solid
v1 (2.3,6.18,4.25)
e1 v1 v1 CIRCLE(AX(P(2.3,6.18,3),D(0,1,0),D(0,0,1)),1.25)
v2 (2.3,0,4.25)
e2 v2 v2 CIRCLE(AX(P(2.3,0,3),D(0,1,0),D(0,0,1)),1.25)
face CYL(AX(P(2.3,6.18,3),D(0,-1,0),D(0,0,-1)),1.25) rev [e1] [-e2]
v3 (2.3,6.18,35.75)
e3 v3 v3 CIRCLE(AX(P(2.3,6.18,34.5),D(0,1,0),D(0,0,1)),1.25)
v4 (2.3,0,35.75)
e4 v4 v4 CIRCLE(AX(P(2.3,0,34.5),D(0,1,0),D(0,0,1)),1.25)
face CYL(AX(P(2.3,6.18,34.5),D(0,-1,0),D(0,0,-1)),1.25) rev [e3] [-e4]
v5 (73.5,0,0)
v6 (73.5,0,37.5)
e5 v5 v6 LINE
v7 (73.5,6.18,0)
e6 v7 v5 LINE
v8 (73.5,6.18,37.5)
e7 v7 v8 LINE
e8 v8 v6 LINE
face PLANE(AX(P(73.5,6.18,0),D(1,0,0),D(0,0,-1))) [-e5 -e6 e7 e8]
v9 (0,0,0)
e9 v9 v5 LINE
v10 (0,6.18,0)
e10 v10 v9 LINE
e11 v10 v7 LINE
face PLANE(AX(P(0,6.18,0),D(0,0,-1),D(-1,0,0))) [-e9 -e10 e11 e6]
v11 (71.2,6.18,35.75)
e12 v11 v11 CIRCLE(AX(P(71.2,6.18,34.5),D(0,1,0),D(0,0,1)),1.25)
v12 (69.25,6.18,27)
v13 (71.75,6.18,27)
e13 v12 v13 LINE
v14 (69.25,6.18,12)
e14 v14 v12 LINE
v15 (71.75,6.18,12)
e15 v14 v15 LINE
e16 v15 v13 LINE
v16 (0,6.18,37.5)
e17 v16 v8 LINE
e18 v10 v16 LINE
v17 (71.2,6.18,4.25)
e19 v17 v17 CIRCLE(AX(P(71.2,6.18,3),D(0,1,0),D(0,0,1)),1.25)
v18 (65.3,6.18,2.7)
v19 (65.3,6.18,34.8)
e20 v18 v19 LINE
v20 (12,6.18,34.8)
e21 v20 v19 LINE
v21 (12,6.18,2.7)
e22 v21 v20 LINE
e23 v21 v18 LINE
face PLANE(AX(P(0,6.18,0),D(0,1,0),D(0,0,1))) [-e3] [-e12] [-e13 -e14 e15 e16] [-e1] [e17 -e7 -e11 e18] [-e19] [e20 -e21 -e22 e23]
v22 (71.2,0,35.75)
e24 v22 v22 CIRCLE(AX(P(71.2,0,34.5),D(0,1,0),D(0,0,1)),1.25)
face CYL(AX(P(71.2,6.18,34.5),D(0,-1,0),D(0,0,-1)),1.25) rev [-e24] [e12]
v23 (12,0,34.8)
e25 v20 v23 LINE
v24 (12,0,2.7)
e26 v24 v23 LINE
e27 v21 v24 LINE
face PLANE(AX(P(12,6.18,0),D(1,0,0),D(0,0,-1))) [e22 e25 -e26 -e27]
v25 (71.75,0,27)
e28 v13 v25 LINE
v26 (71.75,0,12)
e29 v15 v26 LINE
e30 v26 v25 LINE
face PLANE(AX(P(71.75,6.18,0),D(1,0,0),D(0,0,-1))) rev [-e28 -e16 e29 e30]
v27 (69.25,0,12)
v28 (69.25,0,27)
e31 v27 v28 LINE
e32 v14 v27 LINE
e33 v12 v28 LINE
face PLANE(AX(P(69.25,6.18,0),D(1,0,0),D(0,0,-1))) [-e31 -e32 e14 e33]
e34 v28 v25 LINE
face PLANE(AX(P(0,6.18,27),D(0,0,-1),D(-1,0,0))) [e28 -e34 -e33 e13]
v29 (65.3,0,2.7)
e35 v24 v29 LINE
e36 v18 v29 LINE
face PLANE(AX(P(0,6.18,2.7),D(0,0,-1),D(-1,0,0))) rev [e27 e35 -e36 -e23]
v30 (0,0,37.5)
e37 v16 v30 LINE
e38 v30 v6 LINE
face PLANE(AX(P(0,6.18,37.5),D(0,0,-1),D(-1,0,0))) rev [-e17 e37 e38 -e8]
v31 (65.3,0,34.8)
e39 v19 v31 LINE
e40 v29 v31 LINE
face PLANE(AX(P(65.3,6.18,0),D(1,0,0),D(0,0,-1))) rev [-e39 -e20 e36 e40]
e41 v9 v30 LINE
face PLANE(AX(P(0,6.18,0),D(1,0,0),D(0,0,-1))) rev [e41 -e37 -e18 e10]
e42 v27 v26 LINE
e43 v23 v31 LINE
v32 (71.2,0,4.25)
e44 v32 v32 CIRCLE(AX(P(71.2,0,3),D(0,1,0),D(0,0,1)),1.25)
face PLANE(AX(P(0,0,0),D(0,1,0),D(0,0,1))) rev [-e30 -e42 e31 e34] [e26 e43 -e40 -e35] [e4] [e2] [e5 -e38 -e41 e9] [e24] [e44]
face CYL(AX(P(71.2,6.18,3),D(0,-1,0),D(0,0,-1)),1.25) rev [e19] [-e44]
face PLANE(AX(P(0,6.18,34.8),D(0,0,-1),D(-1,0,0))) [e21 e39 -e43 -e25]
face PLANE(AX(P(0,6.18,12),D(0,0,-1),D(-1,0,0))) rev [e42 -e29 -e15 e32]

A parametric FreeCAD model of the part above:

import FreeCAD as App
import Part
import Sketcher

doc = App.newDocument("Part")
body = doc.addObject("PartDesign::Body", "Body")

# Sketch on XZ plane
sketch1 = body.newObject("Sketcher::SketchObject", "Sketch")
sketch1.AttachmentSupport = (doc.getObject("XZ_Plane"), [""])
sketch1.MapMode = "FlatFace"
sketch1.addGeometry([
    Part.LineSegment(App.Vector(0, 0, 0), App.Vector(0, 37.5, 0)),  # 0
    Part.LineSegment(App.Vector(0, 37.5, 0), App.Vector(73.5, 37.5, 0)),  # 1
    Part.LineSegment(App.Vector(73.5, 37.5, 0), App.Vector(73.5, 0, 0)),  # 2
    Part.LineSegment(App.Vector(73.5, 0, 0), App.Vector(0, 0, 0)),  # 3
    Part.Circle(App.Vector(2.3, 34.5, 0), App.Vector(0, 0, 1), 1.25),  # 4
    Part.Circle(App.Vector(71.2, 34.5, 0), App.Vector(0, 0, 1), 1.25),  # 5
    Part.LineSegment(App.Vector(71.75, 27, 0), App.Vector(69.25, 27, 0)),  # 6
    Part.LineSegment(App.Vector(69.25, 27, 0), App.Vector(69.25, 12, 0)),  # 7
    Part.LineSegment(App.Vector(69.25, 12, 0), App.Vector(71.75, 12, 0)),  # 8
    Part.LineSegment(App.Vector(71.75, 12, 0), App.Vector(71.75, 27, 0)),  # 9
    Part.Circle(App.Vector(2.3, 3, 0), App.Vector(0, 0, 1), 1.25),  # 10
    Part.LineSegment(App.Vector(65.3, 34.8, 0), App.Vector(12, 34.8, 0)),  # 11
    Part.LineSegment(App.Vector(12, 34.8, 0), App.Vector(12, 2.7, 0)),  # 12
    Part.LineSegment(App.Vector(12, 2.7, 0), App.Vector(65.3, 2.7, 0)),  # 13
    Part.LineSegment(App.Vector(65.3, 2.7, 0), App.Vector(65.3, 34.8, 0)),  # 14
    Part.Circle(App.Vector(71.2, 3, 0), App.Vector(0, 0, 1), 1.25),  # 15
], False)
sketch1.addConstraint([
    Sketcher.Constraint("Coincident", 0, 2, 1, 1),
    Sketcher.Constraint("Coincident", 1, 2, 2, 1),
    Sketcher.Constraint("Coincident", 2, 2, 3, 1),
    Sketcher.Constraint("Coincident", 3, 2, 0, 1),
    Sketcher.Constraint("Coincident", 6, 2, 7, 1),
    Sketcher.Constraint("Coincident", 7, 2, 8, 1),
    Sketcher.Constraint("Coincident", 8, 2, 9, 1),
    Sketcher.Constraint("Coincident", 9, 2, 6, 1),
    Sketcher.Constraint("Coincident", 11, 2, 12, 1),
    Sketcher.Constraint("Coincident", 12, 2, 13, 1),
    Sketcher.Constraint("Coincident", 13, 2, 14, 1),
    Sketcher.Constraint("Coincident", 14, 2, 11, 1),
    Sketcher.Constraint("Vertical", 0),
    Sketcher.Constraint("Horizontal", 1),
    Sketcher.Constraint("Vertical", 2),
    Sketcher.Constraint("Horizontal", 3),
    Sketcher.Constraint("Horizontal", 6),
    Sketcher.Constraint("Vertical", 7),
    Sketcher.Constraint("Horizontal", 8),
    Sketcher.Constraint("Vertical", 9),
    Sketcher.Constraint("Horizontal", 11),
    Sketcher.Constraint("Vertical", 12),
    Sketcher.Constraint("Horizontal", 13),
    Sketcher.Constraint("Vertical", 14),
    Sketcher.Constraint("Coincident", 3, 2, -1, 1),
    Sketcher.Constraint("Equal", 4, 5),
    Sketcher.Constraint("Equal", 5, 10),
    Sketcher.Constraint("Equal", 10, 15),
    Sketcher.Constraint("Horizontal", 4, 3, 5, 3),
    Sketcher.Constraint("Horizontal", 10, 3, 15, 3),
    Sketcher.Constraint("Vertical", 4, 3, 10, 3),
    Sketcher.Constraint("Vertical", 5, 3, 15, 3),
    Sketcher.Constraint("Diameter", 4, 2.5),
    Sketcher.Constraint("DistanceY", 7, 2, 7, 1, 15.0),
    Sketcher.Constraint("DistanceX", 1, 1, 1, 2, 73.5),
    Sketcher.Constraint("DistanceX", 6, 2, 6, 1, 2.5),
    Sketcher.Constraint("DistanceX", 11, 2, 11, 1, 53.3),
    Sketcher.Constraint("DistanceY", 0, 1, 0, 2, 37.5),
    Sketcher.Constraint("DistanceY", 12, 2, 12, 1, 32.1),
    Sketcher.Constraint("DistanceY", -1, 1, 10, 3, 3.0),
    Sketcher.Constraint("DistanceY", -1, 1, 6, 2, 27.0),
    Sketcher.Constraint("DistanceX", -1, 1, 11, 2, 12.0),
    Sketcher.Constraint("DistanceY", 4, 3, 0, 2, 3.0),
    Sketcher.Constraint("DistanceX", -1, 1, 4, 3, 2.3),
    Sketcher.Constraint("DistanceX", -1, 1, 5, 3, 71.2),
    Sketcher.Constraint("DistanceY", -1, 1, 11, 2, 34.8),
    Sketcher.Constraint("DistanceX", -1, 1, 6, 2, 69.25),
])
pad1 = body.newObject("PartDesign::Pad", "Pad")
pad1.Profile = sketch1
pad1.Length = 6.18
pad1.Reversed = True

doc.recompute()
